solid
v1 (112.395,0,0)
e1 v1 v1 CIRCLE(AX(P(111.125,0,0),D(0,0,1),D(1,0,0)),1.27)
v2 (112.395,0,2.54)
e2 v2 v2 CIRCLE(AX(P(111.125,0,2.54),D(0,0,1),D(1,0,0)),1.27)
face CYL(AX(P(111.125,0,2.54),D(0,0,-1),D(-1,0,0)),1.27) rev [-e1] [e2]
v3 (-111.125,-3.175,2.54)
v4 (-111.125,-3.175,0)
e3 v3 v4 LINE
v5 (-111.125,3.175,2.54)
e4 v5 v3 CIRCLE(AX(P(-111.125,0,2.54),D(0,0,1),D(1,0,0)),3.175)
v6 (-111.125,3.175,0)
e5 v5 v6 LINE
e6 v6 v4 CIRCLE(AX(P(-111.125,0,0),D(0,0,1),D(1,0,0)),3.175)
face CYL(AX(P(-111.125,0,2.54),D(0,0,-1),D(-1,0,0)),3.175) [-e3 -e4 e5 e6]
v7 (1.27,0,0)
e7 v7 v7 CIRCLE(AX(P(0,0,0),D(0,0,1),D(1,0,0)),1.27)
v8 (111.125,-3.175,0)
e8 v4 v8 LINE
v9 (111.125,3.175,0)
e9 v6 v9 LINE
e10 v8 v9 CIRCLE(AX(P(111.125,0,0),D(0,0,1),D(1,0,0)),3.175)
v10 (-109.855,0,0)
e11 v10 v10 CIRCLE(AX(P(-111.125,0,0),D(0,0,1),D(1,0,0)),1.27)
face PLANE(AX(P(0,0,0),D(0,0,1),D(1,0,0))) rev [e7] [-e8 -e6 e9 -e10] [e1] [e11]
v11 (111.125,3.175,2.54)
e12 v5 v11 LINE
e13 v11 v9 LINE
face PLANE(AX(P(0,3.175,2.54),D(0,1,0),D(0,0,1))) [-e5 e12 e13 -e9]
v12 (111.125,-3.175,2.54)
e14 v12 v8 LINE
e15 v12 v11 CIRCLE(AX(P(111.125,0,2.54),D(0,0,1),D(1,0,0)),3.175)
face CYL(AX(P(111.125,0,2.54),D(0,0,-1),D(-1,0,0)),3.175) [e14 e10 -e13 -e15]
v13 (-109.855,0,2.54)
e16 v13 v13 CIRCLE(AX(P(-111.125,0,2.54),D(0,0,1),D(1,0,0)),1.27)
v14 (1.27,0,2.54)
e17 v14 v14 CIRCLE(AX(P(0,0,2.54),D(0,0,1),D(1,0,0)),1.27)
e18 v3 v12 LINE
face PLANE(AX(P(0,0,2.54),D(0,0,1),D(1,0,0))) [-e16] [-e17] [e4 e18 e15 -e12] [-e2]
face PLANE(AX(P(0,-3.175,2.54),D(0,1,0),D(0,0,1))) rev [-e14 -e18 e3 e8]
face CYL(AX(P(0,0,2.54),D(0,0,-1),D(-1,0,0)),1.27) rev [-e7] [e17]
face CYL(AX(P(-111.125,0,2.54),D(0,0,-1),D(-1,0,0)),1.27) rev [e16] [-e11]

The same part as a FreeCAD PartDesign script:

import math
import FreeCAD as App
import Part
import Sketcher
Q = App.Units.Quantity

doc = App.newDocument("Part")
params = doc.addObject("Spreadsheet::Sheet", "Params")
for row, (alias, value) in enumerate([
    ("sketch1_diameter", "0.1 in"),
    ("sketch1_radius", "0.125 in"),
    ("sketch1_width", "8.75 in"),
    ("pad1_length", "0.1 in"),
], start=1):
    params.set(f"A{row}", alias)
    params.set(f"B{row}", "=" + value)
    params.setAlias(f"B{row}", alias)

body = doc.addObject("PartDesign::Body", "Body")

# Sketch on XY plane
sketch1 = body.newObject("Sketcher::SketchObject", "Sketch")
sketch1.AttachmentSupport = (doc.getObject("XY_Plane"), [""])
sketch1.MapMode = "FlatFace"
sketch1.addGeometry(Part.LineSegment(App.Vector(-111.125, -3.175, 0), App.Vector(111.125, -3.175, 0)), False)
sketch1.addGeometry(Part.ArcOfCircle(Part.Circle(App.Vector(111.125, 0, 0), App.Vector(0, 0, 1), 3.175), math.radians(-90), math.radians(90)), False)
sketch1.addGeometry(Part.LineSegment(App.Vector(111.125, 3.175, 0), App.Vector(-111.125, 3.175, 0)), False)
sketch1.addGeometry(Part.ArcOfCircle(Part.Circle(App.Vector(-111.125, 0, 0), App.Vector(0, 0, 1), 3.175), math.radians(90), math.radians(270)), False)
sketch1.addGeometry(Part.Circle(App.Vector(-111.125, 0, 0), App.Vector(0, 0, 1), 1.27), False)
sketch1.addGeometry(Part.Circle(App.Vector(0, 0, 0), App.Vector(0, 0, 1), 1.27), False)
sketch1.addGeometry(Part.Circle(App.Vector(111.125, 0, 0), App.Vector(0, 0, 1), 1.27), False)
sketch1.addConstraint(Sketcher.Constraint("Tangent", 0, 2, 1, 1))
sketch1.addConstraint(Sketcher.Constraint("Tangent", 1, 2, 2, 1))
sketch1.addConstraint(Sketcher.Constraint("Tangent", 2, 2, 3, 1))
sketch1.addConstraint(Sketcher.Constraint("Tangent", 3, 2, 0, 1))
sketch1.addConstraint(Sketcher.Constraint("Horizontal", 0))
sketch1.addConstraint(Sketcher.Constraint("Horizontal", 2))
sketch1.addConstraint(Sketcher.Constraint("Coincident", 5, 3, -1, 1))
sketch1.addConstraint(Sketcher.Constraint("Coincident", 4, 3, 3, 3))
sketch1.addConstraint(Sketcher.Constraint("Coincident", 6, 3, 1, 3))
sketch1.addConstraint(Sketcher.Constraint("Equal", 4, 5))
sketch1.addConstraint(Sketcher.Constraint("Equal", 5, 6))
sketch1.addConstraint(Sketcher.Constraint("Symmetric", 1, 3, 3, 3, -1, 1))
sketch1.addConstraint(Sketcher.Constraint("Diameter", 4, Q("0.1 in")))
sketch1.addConstraint(Sketcher.Constraint("Radius", 1, Q("0.125 in")))
sketch1.addConstraint(Sketcher.Constraint("DistanceX", 0, 1, 0, 2, Q("8.75 in")))
sketch1.setExpression("Constraints[12]", "Params.sketch1_diameter")
sketch1.setExpression("Constraints[13]", "Params.sketch1_radius")
sketch1.setExpression("Constraints[14]", "Params.sketch1_width")
pad1 = body.newObject("PartDesign::Pad", "Pad")
pad1.Profile = sketch1
pad1.setExpression("Length", "Params.pad1_length")

doc.recompute()
